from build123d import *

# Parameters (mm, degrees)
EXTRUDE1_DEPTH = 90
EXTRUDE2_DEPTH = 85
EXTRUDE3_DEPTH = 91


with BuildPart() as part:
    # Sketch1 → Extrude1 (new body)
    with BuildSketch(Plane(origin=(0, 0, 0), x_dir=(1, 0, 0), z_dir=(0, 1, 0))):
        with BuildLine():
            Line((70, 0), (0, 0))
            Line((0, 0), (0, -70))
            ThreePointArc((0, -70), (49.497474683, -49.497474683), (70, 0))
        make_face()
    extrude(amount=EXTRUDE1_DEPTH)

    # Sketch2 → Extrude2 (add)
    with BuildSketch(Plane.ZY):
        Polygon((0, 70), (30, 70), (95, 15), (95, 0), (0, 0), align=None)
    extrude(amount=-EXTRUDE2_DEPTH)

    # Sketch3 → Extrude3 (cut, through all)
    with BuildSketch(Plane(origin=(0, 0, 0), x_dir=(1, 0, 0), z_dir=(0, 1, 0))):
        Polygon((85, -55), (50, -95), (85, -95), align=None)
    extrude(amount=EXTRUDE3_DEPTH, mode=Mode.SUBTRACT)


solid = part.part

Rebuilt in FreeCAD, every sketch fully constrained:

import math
import FreeCAD as App
import Part
import Sketcher

V = App.Vector


def add_polygon(sketch, points):
    """Adds a closed chain of lines whose ends are joined by coincident constraints."""
    first, n = sketch.GeometryCount, len(points)
    for a, b in zip(points, points[1:] + points[:1]):
        sketch.addGeometry(Part.LineSegment(App.Vector(*a, 0), App.Vector(*b, 0)), False)
    for i in range(n):
        sketch.addConstraint(Sketcher.Constraint("Coincident", first + i, 2, first + (i + 1) % n, 1))

doc = App.newDocument("Part")
body = doc.addObject("PartDesign::Body", "Body")

# Sketch on XZ plane
sketch1 = doc.addObject("Sketcher::SketchObject", "Sketch")
body.addObject(sketch1)
sketch1.AttachmentSupport = (doc.XZ_Plane, [""])
sketch1.MapMode = "FlatFace"
sketch1.addGeometry(Part.LineSegment(V(70, 0, 0), V(0, 0, 0)), False)
sketch1.addGeometry(Part.LineSegment(V(0, 0, 0), V(0, 70, 0)), False)
sketch1.addGeometry(Part.ArcOfCircle(Part.Circle(V(0, 0, 0), V(0, 0, 1), 70), math.radians(0), math.radians(90)), False)
sketch1.addConstraint(Sketcher.Constraint("Coincident", 0, 2, 1, 1))
sketch1.addConstraint(Sketcher.Constraint("Coincident", 1, 2, 2, 2))
sketch1.addConstraint(Sketcher.Constraint("Coincident", 2, 1, 0, 1))
sketch1.addConstraint(Sketcher.Constraint("Horizontal", 0))
sketch1.addConstraint(Sketcher.Constraint("Vertical", 1))
sketch1.addConstraint(Sketcher.Constraint("Coincident", 2, 3, -1, 1))
sketch1.addConstraint(Sketcher.Constraint("Coincident", 0, 2, -1, 1))
sketch1.addConstraint(Sketcher.Constraint("Radius", 2, 70.0))
pad1 = doc.addObject("PartDesign::Pad", "Pad")
body.addObject(pad1)
pad1.Profile = sketch1
pad1.Length = 90
pad1.Reversed = True

# Sketch on YZ plane
sketch2 = doc.addObject("Sketcher::SketchObject", "Sketch001")
body.addObject(sketch2)
sketch2.AttachmentSupport = (doc.YZ_Plane, [""])
sketch2.MapMode = "FlatFace"
add_polygon(sketch2, [(70, 30), (70, 0), (0, 0), (0, 95), (15, 95)])  # lines 0-4
sketch2.addConstraint(Sketcher.Constraint("Vertical", 0))
sketch2.addConstraint(Sketcher.Constraint("Horizontal", 1))
sketch2.addConstraint(Sketcher.Constraint("Vertical", 2))
sketch2.addConstraint(Sketcher.Constraint("Horizontal", 3))
sketch2.addConstraint(Sketcher.Constraint("Coincident", 1, 2, -1, 1))
sketch2.addConstraint(Sketcher.Constraint("DistanceX", 1, 2, 1, 1, 70.0))
sketch2.addConstraint(Sketcher.Constraint("DistanceX", 3, 1, 3, 2, 15.0))
sketch2.addConstraint(Sketcher.Constraint("DistanceY", 0, 2, 0, 1, 30.0))
sketch2.addConstraint(Sketcher.Constraint("DistanceY", 2, 1, 2, 2, 95.0))
pad2 = doc.addObject("PartDesign::Pad", "Pad001")
body.addObject(pad2)
pad2.Profile = sketch2
pad2.Length = 85

# Sketch on XZ plane
sketch3 = doc.addObject("Sketcher::SketchObject", "Sketch002")
body.addObject(sketch3)
sketch3.AttachmentSupport = (doc.XZ_Plane, [""])
sketch3.MapMode = "FlatFace"
add_polygon(sketch3, [(85, 55), (50, 95), (85, 95)])  # lines 0-2
sketch3.addConstraint(Sketcher.Constraint("Horizontal", 1))
sketch3.addConstraint(Sketcher.Constraint("Vertical", 2))
sketch3.addConstraint(Sketcher.Constraint("DistanceX", 1, 1, 1, 2, 35.0))
sketch3.addConstraint(Sketcher.Constraint("DistanceY", 2, 2, 2, 1, 40.0))
sketch3.addConstraint(Sketcher.Constraint("DistanceX", -1, 1, 0, 2, 50.0))
sketch3.addConstraint(Sketcher.Constraint("DistanceY", -1, 1, 0, 2, 95.0))
pocket1 = doc.addObject("PartDesign::Pocket", "Pocket")
body.addObject(pocket1)
pocket1.Profile = sketch3
pocket1.Type = "ThroughAll"

doc.recompute()
